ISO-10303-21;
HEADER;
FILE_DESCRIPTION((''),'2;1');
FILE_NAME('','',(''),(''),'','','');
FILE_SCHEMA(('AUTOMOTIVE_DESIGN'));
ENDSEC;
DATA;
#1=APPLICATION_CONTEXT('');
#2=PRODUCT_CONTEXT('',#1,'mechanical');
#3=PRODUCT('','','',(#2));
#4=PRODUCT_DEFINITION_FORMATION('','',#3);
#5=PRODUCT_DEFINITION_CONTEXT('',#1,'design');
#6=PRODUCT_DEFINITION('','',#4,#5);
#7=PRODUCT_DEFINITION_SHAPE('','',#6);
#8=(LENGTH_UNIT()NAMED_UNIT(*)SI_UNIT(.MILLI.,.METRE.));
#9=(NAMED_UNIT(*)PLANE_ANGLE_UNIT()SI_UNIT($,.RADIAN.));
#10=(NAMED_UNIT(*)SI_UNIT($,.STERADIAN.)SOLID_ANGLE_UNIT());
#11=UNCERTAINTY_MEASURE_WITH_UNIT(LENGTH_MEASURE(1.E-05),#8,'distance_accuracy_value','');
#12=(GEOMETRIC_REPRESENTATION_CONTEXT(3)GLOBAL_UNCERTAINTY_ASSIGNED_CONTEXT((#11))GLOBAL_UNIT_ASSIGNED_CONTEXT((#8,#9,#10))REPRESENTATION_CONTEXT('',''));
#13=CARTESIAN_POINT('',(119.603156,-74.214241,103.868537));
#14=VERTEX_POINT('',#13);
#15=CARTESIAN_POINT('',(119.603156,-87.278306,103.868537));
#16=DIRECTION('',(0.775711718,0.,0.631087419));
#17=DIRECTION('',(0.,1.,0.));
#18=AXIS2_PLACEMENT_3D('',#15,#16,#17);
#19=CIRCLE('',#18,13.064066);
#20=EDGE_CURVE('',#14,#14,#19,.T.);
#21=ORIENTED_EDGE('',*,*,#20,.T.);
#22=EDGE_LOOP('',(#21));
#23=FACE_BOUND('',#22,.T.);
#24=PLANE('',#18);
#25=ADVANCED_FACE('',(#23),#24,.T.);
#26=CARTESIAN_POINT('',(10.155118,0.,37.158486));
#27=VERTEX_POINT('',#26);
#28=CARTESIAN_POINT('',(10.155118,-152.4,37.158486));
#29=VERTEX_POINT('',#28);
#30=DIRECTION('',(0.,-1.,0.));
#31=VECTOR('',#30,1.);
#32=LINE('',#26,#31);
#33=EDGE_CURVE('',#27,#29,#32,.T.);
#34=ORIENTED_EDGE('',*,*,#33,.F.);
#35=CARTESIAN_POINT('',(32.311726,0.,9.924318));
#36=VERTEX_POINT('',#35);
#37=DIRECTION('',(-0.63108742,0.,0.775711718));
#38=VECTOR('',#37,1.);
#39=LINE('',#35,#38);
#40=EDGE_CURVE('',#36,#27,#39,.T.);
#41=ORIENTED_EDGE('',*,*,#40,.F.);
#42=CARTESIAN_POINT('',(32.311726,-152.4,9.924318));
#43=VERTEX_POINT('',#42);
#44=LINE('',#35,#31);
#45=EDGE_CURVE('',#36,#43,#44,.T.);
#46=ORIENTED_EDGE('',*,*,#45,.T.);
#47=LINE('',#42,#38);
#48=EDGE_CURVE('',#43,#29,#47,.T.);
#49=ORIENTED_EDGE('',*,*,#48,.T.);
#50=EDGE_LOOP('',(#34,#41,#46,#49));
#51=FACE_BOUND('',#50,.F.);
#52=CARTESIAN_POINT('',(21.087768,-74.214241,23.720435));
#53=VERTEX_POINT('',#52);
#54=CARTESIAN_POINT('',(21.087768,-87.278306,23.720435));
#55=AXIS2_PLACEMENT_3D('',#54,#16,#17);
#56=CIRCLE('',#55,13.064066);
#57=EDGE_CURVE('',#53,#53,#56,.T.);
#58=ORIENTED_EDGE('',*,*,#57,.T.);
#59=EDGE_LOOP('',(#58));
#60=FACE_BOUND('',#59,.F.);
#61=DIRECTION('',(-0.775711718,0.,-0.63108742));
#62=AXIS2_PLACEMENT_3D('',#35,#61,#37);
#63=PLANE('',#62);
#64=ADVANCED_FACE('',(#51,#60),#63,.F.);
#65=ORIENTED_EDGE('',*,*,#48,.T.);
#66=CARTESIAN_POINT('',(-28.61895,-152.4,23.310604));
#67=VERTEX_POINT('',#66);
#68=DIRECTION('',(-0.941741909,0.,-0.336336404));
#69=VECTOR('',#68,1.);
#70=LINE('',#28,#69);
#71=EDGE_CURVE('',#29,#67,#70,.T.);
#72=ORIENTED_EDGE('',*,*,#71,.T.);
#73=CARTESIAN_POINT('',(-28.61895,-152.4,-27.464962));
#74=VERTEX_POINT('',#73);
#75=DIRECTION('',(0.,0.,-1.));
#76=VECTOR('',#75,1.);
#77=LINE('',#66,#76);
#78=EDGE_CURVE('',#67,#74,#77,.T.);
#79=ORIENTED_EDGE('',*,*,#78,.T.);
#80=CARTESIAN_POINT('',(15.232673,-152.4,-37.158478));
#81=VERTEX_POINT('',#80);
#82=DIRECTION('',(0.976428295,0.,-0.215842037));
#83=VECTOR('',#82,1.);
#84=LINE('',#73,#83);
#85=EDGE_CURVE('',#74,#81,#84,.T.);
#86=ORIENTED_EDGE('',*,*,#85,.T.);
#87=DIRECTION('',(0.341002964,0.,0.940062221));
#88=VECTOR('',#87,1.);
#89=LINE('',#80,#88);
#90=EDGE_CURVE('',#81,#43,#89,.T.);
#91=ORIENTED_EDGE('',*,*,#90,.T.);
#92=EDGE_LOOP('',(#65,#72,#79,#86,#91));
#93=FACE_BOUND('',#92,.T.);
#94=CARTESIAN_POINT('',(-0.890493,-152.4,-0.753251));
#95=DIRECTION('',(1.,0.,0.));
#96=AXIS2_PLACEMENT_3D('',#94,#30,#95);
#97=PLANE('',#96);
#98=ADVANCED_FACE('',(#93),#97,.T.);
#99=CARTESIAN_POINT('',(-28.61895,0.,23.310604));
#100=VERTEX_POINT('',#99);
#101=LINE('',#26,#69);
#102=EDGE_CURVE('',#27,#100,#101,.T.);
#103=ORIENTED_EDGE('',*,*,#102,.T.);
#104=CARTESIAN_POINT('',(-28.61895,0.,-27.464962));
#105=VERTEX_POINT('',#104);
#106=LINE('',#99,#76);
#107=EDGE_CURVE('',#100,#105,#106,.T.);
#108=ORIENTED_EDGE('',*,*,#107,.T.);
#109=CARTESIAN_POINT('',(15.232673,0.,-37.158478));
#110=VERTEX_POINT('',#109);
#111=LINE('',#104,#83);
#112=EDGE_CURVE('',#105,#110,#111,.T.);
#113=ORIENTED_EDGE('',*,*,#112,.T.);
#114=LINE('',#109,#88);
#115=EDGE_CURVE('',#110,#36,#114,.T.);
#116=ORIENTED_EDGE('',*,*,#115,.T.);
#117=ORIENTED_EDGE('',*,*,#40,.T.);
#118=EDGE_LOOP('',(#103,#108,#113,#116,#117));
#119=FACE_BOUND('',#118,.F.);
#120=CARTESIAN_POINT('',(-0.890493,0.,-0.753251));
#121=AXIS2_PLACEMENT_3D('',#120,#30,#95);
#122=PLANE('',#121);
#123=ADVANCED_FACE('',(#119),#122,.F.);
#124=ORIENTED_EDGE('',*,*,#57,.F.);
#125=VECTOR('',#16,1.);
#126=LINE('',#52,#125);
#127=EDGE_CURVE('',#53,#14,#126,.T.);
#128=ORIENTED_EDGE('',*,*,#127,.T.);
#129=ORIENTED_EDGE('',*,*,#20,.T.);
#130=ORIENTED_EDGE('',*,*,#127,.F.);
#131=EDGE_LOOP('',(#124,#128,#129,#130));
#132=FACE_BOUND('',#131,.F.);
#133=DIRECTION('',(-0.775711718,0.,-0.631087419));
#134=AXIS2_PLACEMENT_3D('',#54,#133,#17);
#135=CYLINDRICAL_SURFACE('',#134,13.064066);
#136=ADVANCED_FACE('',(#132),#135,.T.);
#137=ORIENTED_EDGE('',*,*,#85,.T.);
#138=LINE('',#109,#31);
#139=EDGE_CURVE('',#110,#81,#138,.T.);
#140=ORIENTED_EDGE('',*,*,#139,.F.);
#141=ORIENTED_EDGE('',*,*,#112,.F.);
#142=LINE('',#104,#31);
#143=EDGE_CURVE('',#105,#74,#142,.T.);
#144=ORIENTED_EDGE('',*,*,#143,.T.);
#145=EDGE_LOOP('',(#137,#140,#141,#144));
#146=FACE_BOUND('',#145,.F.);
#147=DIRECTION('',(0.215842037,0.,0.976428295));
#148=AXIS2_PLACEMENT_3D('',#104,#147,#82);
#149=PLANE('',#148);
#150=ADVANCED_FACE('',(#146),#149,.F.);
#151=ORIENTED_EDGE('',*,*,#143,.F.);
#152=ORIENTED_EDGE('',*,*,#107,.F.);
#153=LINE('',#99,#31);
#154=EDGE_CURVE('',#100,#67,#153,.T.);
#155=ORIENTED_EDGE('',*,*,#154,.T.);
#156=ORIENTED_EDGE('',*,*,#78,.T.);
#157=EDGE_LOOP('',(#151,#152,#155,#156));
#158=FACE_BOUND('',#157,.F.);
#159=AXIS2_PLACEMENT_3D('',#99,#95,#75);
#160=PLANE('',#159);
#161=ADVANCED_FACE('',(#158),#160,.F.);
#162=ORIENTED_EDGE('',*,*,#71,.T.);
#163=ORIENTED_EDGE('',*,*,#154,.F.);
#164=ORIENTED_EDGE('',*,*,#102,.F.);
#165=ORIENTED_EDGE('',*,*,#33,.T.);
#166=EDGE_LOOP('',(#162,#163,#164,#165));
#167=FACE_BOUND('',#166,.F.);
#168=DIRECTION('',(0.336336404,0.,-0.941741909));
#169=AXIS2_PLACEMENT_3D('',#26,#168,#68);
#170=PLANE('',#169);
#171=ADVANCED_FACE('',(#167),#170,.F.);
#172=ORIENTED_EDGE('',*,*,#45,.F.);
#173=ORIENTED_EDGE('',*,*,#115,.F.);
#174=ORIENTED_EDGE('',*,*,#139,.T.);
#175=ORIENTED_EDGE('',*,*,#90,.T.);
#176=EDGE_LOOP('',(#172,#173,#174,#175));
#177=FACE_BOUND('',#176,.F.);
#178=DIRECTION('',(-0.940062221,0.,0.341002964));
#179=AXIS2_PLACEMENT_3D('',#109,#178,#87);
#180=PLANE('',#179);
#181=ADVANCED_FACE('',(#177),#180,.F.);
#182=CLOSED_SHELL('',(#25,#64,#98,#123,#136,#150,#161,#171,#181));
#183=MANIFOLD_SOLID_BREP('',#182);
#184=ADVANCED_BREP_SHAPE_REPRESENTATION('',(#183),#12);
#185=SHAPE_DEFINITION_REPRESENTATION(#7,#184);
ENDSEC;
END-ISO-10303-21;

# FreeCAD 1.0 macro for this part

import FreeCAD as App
import Part
import Sketcher
from FreeCAD import Vector
Q = App.Units.Quantity


def add_polygon(sketch, points):
    """Adds a closed chain of lines whose ends are joined by coincident constraints."""
    first, n = sketch.GeometryCount, len(points)
    for a, b in zip(points, points[1:] + points[:1]):
        sketch.addGeometry(Part.LineSegment(App.Vector(*a, 0), App.Vector(*b, 0)), False)
    for i in range(n):
        sketch.addConstraint(Sketcher.Constraint("Coincident", first + i, 2, first + (i + 1) % n, 1))

doc = App.newDocument("Part")
body = doc.addObject("PartDesign::Body", "Body")

# Sketch on XZ plane
sketch1 = doc.addObject("Sketcher::SketchObject", "Sketch")
body.addObject(sketch1)
sketch1.AttachmentSupport = (doc.XZ_Plane, [""])
sketch1.MapMode = "FlatFace"
add_polygon(sketch1, [(-29, 23), (-29, -27), (15, -37), (32, 10), (10, 37)])  # lines 0-4
sketch1.addConstraint([
    Sketcher.Constraint("Vertical", 0),
    Sketcher.Constraint("Distance", 3, 35.10862),
    Sketcher.Constraint("DistanceY", 0, 2, 0, 1, 50.775565),
    Sketcher.Constraint("DistanceX", 0, 2, -1, 1, 28.61895),
    Sketcher.Constraint("DistanceY", 0, 2, -1, 1, 27.464962),
    Sketcher.Constraint("DistanceY", 1, 2, -1, 1, 37.158478),
    Sketcher.Constraint("DistanceX", -1, 1, 3, 2, 10.155118),
    Sketcher.Constraint("DistanceY", 0, 2, 2, 2, 37.389279),
    Sketcher.Constraint("DistanceX", 3, 2, 2, 2, 22.156608),
    Sketcher.Constraint("Distance", 1, 44.910234),
])
pad1 = doc.addObject("PartDesign::Pad", "Pad")
body.addObject(pad1)
pad1.Profile = sketch1
pad1.Length = Q("6 in")

# Sketch on an angled plane
sketch2 = doc.addObject("Sketcher::SketchObject", "Sketch001")
body.addObject(sketch2)
sketch2.Placement = App.Placement(Vector(24.301262, 0, 19.770515), App.Rotation(Vector(0, 1, 0), Vector(-0.631087419, 0, 0.775711718), Vector(0.775711718, 0, 0.631087419), "ZXY"))
sketch2.addGeometry(Part.Circle(Vector(-87, 5, 0), Vector(0, 0, 1), 13), False)
sketch2.addConstraint([
    Sketcher.Constraint("Diameter", 0, 26.128131),
    Sketcher.Constraint("DistanceX", 0, 3, -1, 1, 87.278306),
    Sketcher.Constraint("DistanceY", -1, 1, 0, 3, 5.091994),
])
pad2 = doc.addObject("PartDesign::Pad", "Pad001")
body.addObject(pad2)
pad2.Profile = sketch2
pad2.Length = Q("5 in")

doc.recompute()
